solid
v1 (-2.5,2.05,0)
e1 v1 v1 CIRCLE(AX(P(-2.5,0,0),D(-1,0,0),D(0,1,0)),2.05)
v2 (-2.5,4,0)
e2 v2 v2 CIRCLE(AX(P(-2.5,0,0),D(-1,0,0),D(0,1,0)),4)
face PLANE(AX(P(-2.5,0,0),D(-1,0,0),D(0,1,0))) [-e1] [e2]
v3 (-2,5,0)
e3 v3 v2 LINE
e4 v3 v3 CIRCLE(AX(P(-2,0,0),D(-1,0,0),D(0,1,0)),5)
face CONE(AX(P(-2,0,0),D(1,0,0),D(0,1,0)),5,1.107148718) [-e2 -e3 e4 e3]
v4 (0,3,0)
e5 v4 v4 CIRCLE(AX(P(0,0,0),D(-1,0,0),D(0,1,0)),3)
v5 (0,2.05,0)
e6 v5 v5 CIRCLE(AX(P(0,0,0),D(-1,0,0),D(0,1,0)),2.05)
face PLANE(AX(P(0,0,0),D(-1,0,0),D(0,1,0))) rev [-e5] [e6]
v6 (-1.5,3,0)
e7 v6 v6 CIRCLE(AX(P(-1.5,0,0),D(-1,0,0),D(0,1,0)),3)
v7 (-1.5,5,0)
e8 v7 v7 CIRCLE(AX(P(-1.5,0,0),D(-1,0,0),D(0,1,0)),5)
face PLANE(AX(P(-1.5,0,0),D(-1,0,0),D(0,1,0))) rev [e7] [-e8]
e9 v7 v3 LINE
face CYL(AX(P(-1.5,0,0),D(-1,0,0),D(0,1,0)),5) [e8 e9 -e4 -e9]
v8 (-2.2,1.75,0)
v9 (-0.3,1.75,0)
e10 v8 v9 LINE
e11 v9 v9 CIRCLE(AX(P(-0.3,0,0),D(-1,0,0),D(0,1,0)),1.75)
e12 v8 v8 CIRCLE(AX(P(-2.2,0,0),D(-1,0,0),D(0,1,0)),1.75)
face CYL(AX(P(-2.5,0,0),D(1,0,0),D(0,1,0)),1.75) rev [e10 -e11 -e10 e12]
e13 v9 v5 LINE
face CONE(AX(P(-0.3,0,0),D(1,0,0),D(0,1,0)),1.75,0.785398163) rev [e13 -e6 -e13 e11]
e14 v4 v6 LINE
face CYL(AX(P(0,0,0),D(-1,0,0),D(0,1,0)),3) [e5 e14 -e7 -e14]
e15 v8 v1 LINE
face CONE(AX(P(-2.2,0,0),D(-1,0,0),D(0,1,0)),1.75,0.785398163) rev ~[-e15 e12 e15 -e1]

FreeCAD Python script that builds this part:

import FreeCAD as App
import Part
import Sketcher
Q = App.Units.Quantity


def edges_at(feature, points):
    """Names of the edges that pass closest to the given points."""
    edges = feature.Shape.Edges
    near = lambda p: min(range(len(edges)), key=lambda i: edges[i].distToShape(Part.Vertex(*p))[0])
    return sorted({f"Edge{near(p) + 1}" for p in points})

doc = App.newDocument("Part")
body = doc.addObject("PartDesign::Body", "Body")

# Sketch on XY plane
sketch1 = body.newObject("Sketcher::SketchObject", "Sketch")
sketch1.AttachmentSupport = (doc.getObject("XY_Plane"), [""])
sketch1.MapMode = "FlatFace"
sketch1.addGeometry([
    Part.LineSegment(App.Vector(-2.5, 1.8, 0), App.Vector(0, 1.8, 0)),  # 0
    Part.LineSegment(App.Vector(0, 1.8, 0), App.Vector(0, 3, 0)),  # 1
    Part.LineSegment(App.Vector(0, 3, 0), App.Vector(-1.5, 3, 0)),  # 2
    Part.LineSegment(App.Vector(-1.5, 3, 0), App.Vector(-1.5, 5, 0)),  # 3
    Part.LineSegment(App.Vector(-1.5, 5, 0), App.Vector(-2, 5, 0)),  # 4
    Part.LineSegment(App.Vector(-2, 5, 0), App.Vector(-2.5, 4, 0)),  # 5
    Part.LineSegment(App.Vector(-2.5, 4, 0), App.Vector(-2.5, 1.8, 0)),  # 6
], False)
sketch1.addConstraint([
    Sketcher.Constraint("Coincident", 0, 2, 1, 1),
    Sketcher.Constraint("Coincident", 1, 2, 2, 1),
    Sketcher.Constraint("Coincident", 2, 2, 3, 1),
    Sketcher.Constraint("Coincident", 3, 2, 4, 1),
    Sketcher.Constraint("Coincident", 4, 2, 5, 1),
    Sketcher.Constraint("Coincident", 5, 2, 6, 1),
    Sketcher.Constraint("Coincident", 6, 2, 0, 1),
    Sketcher.Constraint("Horizontal", 0),
    Sketcher.Constraint("Vertical", 1),
    Sketcher.Constraint("Horizontal", 2),
    Sketcher.Constraint("Vertical", 3),
    Sketcher.Constraint("Horizontal", 4),
    Sketcher.Constraint("Vertical", 6),
    Sketcher.Constraint("PointOnObject", 0, 2, -2),
    Sketcher.Constraint("DistanceX", 2, 2, 2, 1, Q("1.5 mm")),
    Sketcher.Constraint("DistanceX", 4, 2, 4, 1, Q("0.5 mm")),
    Sketcher.Constraint("DistanceY", 5, 2, 4, 2, Q("1 mm")),
    Sketcher.Constraint("DistanceX", 5, 2, 2, 2, Q("1 mm")),
    Sketcher.Constraint("DistanceY", 2, 2, 5, 2, Q("1 mm")),
    Sketcher.Constraint("DistanceY", -1, 1, 1, 2, Q("3 mm")),
    Sketcher.Constraint("DistanceY", 1, 1, 1, 2, Q("1.25 mm")),
])
revolution = body.newObject("PartDesign::Revolution", "Revolution")
revolution.Profile = sketch1
revolution.ReferenceAxis = (sketch1, ["H_Axis"])
revolution.Angle = 360
doc.recompute()

chamfer = body.newObject("PartDesign::Chamfer", "Chamfer")
chamfer.Base = (revolution, edges_at(revolution, [(-2.5, -1.75, 0), (0, -1.75, 0)]))
chamfer.Size = 0.3

doc.recompute()
